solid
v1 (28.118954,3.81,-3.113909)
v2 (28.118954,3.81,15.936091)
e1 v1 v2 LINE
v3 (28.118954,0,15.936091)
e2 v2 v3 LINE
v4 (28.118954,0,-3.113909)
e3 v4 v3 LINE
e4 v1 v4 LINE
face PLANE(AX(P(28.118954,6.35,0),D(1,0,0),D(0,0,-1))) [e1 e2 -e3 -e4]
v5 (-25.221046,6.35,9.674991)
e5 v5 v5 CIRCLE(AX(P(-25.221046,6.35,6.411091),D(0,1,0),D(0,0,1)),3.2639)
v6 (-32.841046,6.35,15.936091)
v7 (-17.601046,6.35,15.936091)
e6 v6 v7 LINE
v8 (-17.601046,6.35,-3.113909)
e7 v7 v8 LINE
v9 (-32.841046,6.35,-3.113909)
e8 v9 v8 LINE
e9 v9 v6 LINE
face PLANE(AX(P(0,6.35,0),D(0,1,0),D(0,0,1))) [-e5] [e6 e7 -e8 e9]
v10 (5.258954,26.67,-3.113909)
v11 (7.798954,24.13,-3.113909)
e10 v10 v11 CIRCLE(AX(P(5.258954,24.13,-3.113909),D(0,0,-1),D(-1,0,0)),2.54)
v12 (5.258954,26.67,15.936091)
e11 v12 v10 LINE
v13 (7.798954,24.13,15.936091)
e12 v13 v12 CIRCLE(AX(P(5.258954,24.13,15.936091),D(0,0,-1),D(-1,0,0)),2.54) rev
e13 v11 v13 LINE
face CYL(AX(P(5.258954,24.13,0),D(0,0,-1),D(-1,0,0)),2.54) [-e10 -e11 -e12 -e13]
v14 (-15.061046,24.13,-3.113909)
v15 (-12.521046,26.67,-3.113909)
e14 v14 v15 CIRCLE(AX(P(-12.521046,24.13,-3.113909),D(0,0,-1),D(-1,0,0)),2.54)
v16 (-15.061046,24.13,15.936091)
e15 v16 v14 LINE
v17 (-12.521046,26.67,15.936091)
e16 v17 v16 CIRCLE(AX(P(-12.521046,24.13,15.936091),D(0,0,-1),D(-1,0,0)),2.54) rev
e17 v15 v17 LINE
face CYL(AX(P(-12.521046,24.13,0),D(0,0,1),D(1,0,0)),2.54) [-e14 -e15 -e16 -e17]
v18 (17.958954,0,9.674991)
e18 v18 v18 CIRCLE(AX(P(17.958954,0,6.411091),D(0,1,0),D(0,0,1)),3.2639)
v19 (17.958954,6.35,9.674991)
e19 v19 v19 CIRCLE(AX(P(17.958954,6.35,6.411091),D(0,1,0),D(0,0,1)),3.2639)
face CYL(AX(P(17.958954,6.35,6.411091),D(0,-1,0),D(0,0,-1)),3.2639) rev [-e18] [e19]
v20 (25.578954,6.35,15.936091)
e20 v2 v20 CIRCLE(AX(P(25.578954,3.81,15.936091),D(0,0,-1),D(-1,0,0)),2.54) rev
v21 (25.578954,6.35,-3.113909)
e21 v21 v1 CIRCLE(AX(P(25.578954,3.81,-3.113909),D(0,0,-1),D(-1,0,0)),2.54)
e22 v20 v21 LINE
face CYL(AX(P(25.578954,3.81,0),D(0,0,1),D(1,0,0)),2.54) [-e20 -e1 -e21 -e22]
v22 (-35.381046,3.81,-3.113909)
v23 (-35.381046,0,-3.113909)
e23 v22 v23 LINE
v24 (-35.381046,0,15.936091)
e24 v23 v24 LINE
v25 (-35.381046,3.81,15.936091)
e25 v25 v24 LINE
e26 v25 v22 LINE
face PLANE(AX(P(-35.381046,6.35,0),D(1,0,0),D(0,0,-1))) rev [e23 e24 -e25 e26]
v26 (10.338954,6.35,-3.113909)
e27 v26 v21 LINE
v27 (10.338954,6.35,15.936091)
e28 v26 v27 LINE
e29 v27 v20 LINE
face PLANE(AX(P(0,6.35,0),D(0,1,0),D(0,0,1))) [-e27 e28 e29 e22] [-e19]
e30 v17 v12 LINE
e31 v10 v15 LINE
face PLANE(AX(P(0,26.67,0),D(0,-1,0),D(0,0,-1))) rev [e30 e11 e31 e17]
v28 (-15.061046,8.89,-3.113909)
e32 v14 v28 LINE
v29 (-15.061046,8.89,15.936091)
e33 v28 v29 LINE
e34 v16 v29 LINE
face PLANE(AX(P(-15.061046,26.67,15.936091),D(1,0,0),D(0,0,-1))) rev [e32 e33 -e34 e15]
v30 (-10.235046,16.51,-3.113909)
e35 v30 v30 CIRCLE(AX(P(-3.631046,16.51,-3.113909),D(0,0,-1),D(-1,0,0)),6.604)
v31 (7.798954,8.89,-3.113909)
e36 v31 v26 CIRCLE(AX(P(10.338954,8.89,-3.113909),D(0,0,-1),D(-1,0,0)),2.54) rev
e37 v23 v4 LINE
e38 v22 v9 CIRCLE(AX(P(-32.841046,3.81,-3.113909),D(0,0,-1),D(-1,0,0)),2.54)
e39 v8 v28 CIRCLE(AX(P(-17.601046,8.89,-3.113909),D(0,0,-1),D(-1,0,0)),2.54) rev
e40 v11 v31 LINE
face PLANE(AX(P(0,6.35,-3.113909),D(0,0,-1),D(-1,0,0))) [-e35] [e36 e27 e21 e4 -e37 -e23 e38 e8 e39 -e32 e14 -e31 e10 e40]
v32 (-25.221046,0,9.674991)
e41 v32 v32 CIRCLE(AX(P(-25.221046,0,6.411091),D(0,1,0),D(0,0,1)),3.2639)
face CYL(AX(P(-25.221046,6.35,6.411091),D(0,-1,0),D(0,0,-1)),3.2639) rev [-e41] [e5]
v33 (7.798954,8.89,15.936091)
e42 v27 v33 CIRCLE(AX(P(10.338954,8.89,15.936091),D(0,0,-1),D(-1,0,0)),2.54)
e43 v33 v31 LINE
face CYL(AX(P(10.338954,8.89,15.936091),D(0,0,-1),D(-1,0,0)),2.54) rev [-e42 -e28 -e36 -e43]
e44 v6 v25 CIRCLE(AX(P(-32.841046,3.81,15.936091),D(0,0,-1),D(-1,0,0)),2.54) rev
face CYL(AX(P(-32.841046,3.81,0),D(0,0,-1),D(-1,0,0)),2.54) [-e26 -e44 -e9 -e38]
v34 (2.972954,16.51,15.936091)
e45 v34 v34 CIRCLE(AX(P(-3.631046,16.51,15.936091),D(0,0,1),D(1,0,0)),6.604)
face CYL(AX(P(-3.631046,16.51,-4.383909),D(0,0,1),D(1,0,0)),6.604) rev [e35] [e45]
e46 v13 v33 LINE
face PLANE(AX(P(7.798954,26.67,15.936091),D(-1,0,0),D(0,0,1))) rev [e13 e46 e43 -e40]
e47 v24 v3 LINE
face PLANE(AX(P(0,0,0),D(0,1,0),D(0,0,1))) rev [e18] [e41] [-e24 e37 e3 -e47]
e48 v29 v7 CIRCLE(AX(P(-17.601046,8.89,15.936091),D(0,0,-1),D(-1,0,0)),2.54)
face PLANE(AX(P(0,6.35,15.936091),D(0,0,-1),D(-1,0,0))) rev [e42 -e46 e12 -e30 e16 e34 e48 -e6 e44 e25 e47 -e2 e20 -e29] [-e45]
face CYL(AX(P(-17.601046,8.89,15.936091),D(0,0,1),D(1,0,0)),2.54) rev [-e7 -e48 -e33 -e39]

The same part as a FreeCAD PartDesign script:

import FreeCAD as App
import Part
import Sketcher
Q = App.Units.Quantity


def edges_at(feature, points):
    """Names of the edges that pass closest to the given points."""
    edges = feature.Shape.Edges
    near = lambda p: min(range(len(edges)), key=lambda i: edges[i].distToShape(Part.Vertex(*p))[0])
    return sorted({f"Edge{near(p) + 1}" for p in points})


def add_polygon(sketch, points):
    """Adds a closed chain of lines whose ends are joined by coincident constraints."""
    first, n = sketch.GeometryCount, len(points)
    for a, b in zip(points, points[1:] + points[:1]):
        sketch.addGeometry(Part.LineSegment(App.Vector(*a, 0), App.Vector(*b, 0)), False)
    for i in range(n):
        sketch.addConstraint(Sketcher.Constraint("Coincident", first + i, 2, first + (i + 1) % n, 1))

doc = App.newDocument("Part")
body = doc.addObject("PartDesign::Body", "Body")

sketch1 = body.newObject("Sketcher::SketchObject", "Sketch")
sketch1.AttachmentSupport = (doc.getObject("XZ_Plane"), [""])
sketch1.MapMode = "FlatFace"
add_polygon(sketch1, [(-35.381046, -3.113909), (-35.381046, 15.936091), (28.118954, 15.936091), (28.118954, -3.113909)])
sketch1.addGeometry(Part.Circle(App.Vector(-25.221046, 6.411091, 0), App.Vector(0, 0, 1), 3.2639), False)
sketch1.addGeometry(Part.Circle(App.Vector(17.958954, 6.411091, 0), App.Vector(0, 0, 1), 3.2639), False)
sketch1.addConstraint(Sketcher.Constraint("Vertical", 0))
sketch1.addConstraint(Sketcher.Constraint("Horizontal", 1))
sketch1.addConstraint(Sketcher.Constraint("Vertical", 2))
sketch1.addConstraint(Sketcher.Constraint("Horizontal", 3))
sketch1.addConstraint(Sketcher.Constraint("Equal", 4, 5))
sketch1.addConstraint(Sketcher.Constraint("Horizontal", 4, 3, 5, 3))
sketch1.addConstraint(Sketcher.Constraint("Diameter", 4, Q("0.257 in")))
sketch1.addConstraint(Sketcher.Constraint("DistanceX", 1, 1, 1, 2, Q("2.5 in")))
sketch1.addConstraint(Sketcher.Constraint("DistanceY", 0, 1, 0, 2, Q("0.75 in")))
sketch1.addConstraint(Sketcher.Constraint("DistanceX", 4, 3, 5, 3, Q("1.7 in")))
sketch1.addConstraint(Sketcher.Constraint("DistanceX", 0, 2, 4, 3, Q("0.4 in")))
sketch1.addConstraint(Sketcher.Constraint("DistanceY", 4, 3, 0, 2, Q("0.375 in")))
sketch1.addConstraint(Sketcher.Constraint("DistanceY", -1, 1, 4, 3, Q("6.411091 mm")))
sketch1.addConstraint(Sketcher.Constraint("DistanceX", 4, 3, -1, 1, Q("25.221046 mm")))
pad1 = body.newObject("PartDesign::Pad", "Pad")
pad1.Profile = sketch1
pad1.Length = Q("0.25 in")
pad1.Reversed = True

sketch2 = body.newObject("Sketcher::SketchObject", "Sketch001")
sketch2.AttachmentSupport = (doc.getObject("XZ_Plane"), [""])
sketch2.MapMode = "FlatFace"
sketch2.AttachmentOffset = App.Placement(App.Vector(0, 0, -0.25 * 25.4), App.Rotation())
add_polygon(sketch2, [(-15.061046, -3.113909), (-15.061046, 15.936091), (7.798954, 15.936091), (7.798954, -3.113909)])
sketch2.addConstraint(Sketcher.Constraint("Vertical", 0))
sketch2.addConstraint(Sketcher.Constraint("Horizontal", 1))
sketch2.addConstraint(Sketcher.Constraint("Vertical", 2))
sketch2.addConstraint(Sketcher.Constraint("Horizontal", 3))
sketch2.addConstraint(Sketcher.Constraint("DistanceX", 1, 1, 1, 2, Q("0.9 in")))
sketch2.addConstraint(Sketcher.Constraint("DistanceY", 0, 1, 0, 2, Q("0.75 in")))
sketch2.addConstraint(Sketcher.Constraint("DistanceY", -1, 1, 0, 2, Q("15.936091 mm")))
sketch2.addConstraint(Sketcher.Constraint("DistanceX", 0, 2, -1, 1, Q("15.061046 mm")))
pad2 = body.newObject("PartDesign::Pad", "Pad001")
pad2.Profile = sketch2
pad2.Length = Q("0.8 in")
pad2.Reversed = True

sketch3 = body.newObject("Sketcher::SketchObject", "Sketch002")
sketch3.AttachmentSupport = (doc.getObject("XY_Plane"), [""])
sketch3.MapMode = "FlatFace"
sketch3.AttachmentOffset = App.Placement(App.Vector(0, 0, 15.936091), App.Rotation())
sketch3.addGeometry(Part.Circle(App.Vector(-3.631046, 16.51, 0), App.Vector(0, 0, 1), 6.604), False)
sketch3.addConstraint(Sketcher.Constraint("Diameter", 0, Q("0.52 in")))
sketch3.addConstraint(Sketcher.Constraint("DistanceY", -1, 1, 0, 3, Q("0.65 in")))
sketch3.addConstraint(Sketcher.Constraint("DistanceX", 0, 3, -1, 1, Q("3.631046 mm")))
pocket1 = body.newObject("PartDesign::Pocket", "Pocket")
pocket1.Profile = sketch3
pocket1.Length = Q("0.8 in")
doc.recompute()

fillet = body.newObject("PartDesign::Fillet", "Fillet")
fillet.Base = (pocket1, edges_at(pocket1, [
    (-15.061, 6.35, 6.411),
    (-35.381, 6.35, 6.411),
    (28.119, 6.35, 6.411),
    (7.799, 26.67, 6.411),
    (-15.061, 26.67, 6.411),
    (7.799, 6.35, 6.411),
]))
fillet.Radius = Q("0.1 in")

doc.recompute()
